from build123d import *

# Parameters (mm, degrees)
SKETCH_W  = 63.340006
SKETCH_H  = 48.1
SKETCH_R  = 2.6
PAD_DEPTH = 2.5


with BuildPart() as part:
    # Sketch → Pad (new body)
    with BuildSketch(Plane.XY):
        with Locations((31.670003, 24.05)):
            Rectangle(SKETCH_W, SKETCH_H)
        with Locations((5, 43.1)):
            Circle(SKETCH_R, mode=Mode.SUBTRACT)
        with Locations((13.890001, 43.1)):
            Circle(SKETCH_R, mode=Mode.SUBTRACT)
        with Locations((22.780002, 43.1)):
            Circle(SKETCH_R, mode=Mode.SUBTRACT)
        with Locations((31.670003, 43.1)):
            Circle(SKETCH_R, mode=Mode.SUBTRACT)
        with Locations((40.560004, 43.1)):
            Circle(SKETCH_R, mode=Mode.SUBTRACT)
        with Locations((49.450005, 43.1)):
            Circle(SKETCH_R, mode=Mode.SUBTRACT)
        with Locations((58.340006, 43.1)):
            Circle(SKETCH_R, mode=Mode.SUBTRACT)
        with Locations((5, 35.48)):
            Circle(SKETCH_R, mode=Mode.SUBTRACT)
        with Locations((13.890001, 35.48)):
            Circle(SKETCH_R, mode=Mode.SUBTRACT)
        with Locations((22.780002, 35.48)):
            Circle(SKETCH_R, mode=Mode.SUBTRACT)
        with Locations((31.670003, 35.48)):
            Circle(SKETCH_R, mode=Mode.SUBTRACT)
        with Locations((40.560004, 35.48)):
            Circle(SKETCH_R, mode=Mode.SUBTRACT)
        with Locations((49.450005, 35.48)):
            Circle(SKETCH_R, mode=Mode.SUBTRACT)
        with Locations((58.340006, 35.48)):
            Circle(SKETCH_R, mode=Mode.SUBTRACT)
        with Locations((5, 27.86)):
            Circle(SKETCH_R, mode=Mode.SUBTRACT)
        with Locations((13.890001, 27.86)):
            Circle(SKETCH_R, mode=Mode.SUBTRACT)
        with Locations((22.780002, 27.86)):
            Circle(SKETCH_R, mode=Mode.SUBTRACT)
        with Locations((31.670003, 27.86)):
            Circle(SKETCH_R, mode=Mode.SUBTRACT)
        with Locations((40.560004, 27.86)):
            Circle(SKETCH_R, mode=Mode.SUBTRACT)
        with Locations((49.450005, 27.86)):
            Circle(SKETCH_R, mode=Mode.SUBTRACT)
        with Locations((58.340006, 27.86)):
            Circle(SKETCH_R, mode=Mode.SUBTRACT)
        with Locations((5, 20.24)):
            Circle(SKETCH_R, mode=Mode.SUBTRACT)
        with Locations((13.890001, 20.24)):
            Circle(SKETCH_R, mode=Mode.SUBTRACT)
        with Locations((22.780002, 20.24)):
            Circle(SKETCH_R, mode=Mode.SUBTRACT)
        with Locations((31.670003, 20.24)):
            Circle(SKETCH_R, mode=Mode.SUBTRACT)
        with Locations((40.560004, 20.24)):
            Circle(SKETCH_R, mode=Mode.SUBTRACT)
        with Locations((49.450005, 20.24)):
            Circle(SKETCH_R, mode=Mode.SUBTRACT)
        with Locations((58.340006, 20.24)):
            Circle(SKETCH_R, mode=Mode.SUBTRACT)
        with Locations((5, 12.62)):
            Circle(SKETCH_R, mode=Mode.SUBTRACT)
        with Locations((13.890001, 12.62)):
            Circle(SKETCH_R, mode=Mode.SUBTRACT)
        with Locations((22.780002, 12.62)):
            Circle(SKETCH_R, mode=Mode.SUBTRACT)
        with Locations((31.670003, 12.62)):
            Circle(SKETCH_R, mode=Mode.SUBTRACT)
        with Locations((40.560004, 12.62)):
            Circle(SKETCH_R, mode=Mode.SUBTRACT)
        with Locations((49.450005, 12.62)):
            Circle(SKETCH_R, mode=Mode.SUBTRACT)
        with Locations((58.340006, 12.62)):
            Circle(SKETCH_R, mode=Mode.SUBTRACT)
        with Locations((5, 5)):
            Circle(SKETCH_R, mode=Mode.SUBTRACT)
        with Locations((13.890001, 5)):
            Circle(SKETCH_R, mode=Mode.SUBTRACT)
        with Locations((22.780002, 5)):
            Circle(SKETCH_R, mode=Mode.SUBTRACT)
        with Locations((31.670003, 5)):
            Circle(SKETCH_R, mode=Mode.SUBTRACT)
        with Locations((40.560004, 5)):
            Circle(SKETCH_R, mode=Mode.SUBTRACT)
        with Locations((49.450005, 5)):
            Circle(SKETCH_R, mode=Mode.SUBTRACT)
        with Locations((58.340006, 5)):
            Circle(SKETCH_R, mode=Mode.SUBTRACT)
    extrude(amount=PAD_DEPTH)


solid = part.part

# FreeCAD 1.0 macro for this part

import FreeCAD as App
import Part
import Sketcher

V = App.Vector


def add_polygon(sketch, points):
    """Adds a closed chain of lines whose ends are joined by coincident constraints."""
    first, n = sketch.GeometryCount, len(points)
    for a, b in zip(points, points[1:] + points[:1]):
        sketch.addGeometry(Part.LineSegment(App.Vector(*a, 0), App.Vector(*b, 0)), False)
    for i in range(n):
        sketch.addConstraint(Sketcher.Constraint("Coincident", first + i, 2, first + (i + 1) % n, 1))

doc = App.newDocument("Part")
body = doc.addObject("PartDesign::Body", "Body")

# Sketch on XY plane
sketch1 = body.newObject("Sketcher::SketchObject", "Sketch")
sketch1.AttachmentSupport = (doc.getObject("XY_Plane"), [""])
sketch1.MapMode = "FlatFace"
add_polygon(sketch1, [(0, 48.1), (0, 0), (63.3, 0), (63.3, 48.1)])  # lines 0-3
sketch1.addGeometry(Part.Circle(V(5, 5, 0), V(0, 0, 1), 2.6), False)  # 4
sketch1.addGeometry(Part.Circle(V(13.9, 5, 0), V(0, 0, 1), 2.6), False)  # 5
sketch1.addGeometry(Part.Circle(V(5, 12.6, 0), V(0, 0, 1), 2.6), False)  # 6
sketch1.addGeometry(Part.Circle(V(13.9, 12.6, 0), V(0, 0, 1), 2.6), False)  # 7
sketch1.addGeometry(Part.Circle(V(22.8, 5, 0), V(0, 0, 1), 2.6), False)  # 8
sketch1.addGeometry(Part.Circle(V(22.8, 12.6, 0), V(0, 0, 1), 2.6), False)  # 9
sketch1.addGeometry(Part.Circle(V(5, 20.2, 0), V(0, 0, 1), 2.6), False)  # 10
sketch1.addGeometry(Part.Circle(V(13.9, 20.2, 0), V(0, 0, 1), 2.6), False)  # 11
sketch1.addGeometry(Part.Circle(V(22.8, 20.2, 0), V(0, 0, 1), 2.6), False)  # 12
sketch1.addGeometry(Part.Circle(V(31.7, 5, 0), V(0, 0, 1), 2.6), False)  # 13
sketch1.addGeometry(Part.Circle(V(40.6, 5, 0), V(0, 0, 1), 2.6), False)  # 14
sketch1.addGeometry(Part.Circle(V(31.7, 12.6, 0), V(0, 0, 1), 2.6), False)  # 15
sketch1.addGeometry(Part.Circle(V(40.6, 12.6, 0), V(0, 0, 1), 2.6), False)  # 16
sketch1.addGeometry(Part.Circle(V(49.5, 5, 0), V(0, 0, 1), 2.6), False)  # 17
sketch1.addGeometry(Part.Circle(V(58.3, 5, 0), V(0, 0, 1), 2.6), False)  # 18
sketch1.addGeometry(Part.Circle(V(49.5, 12.6, 0), V(0, 0, 1), 2.6), False)  # 19
sketch1.addGeometry(Part.Circle(V(58.3, 12.6, 0), V(0, 0, 1), 2.6), False)  # 20
sketch1.addGeometry(Part.Circle(V(31.7, 20.2, 0), V(0, 0, 1), 2.6), False)  # 21
sketch1.addGeometry(Part.Circle(V(40.6, 20.2, 0), V(0, 0, 1), 2.6), False)  # 22
sketch1.addGeometry(Part.Circle(V(49.5, 20.2, 0), V(0, 0, 1), 2.6), False)  # 23
sketch1.addGeometry(Part.Circle(V(58.3, 20.2, 0), V(0, 0, 1), 2.6), False)  # 24
sketch1.addGeometry(Part.Circle(V(5, 27.9, 0), V(0, 0, 1), 2.6), False)  # 25
sketch1.addGeometry(Part.Circle(V(13.9, 27.9, 0), V(0, 0, 1), 2.6), False)  # 26
sketch1.addGeometry(Part.Circle(V(22.8, 27.9, 0), V(0, 0, 1), 2.6), False)  # 27
sketch1.addGeometry(Part.Circle(V(5, 35.5, 0), V(0, 0, 1), 2.6), False)  # 28
sketch1.addGeometry(Part.Circle(V(13.9, 35.5, 0), V(0, 0, 1), 2.6), False)  # 29
sketch1.addGeometry(Part.Circle(V(5, 43.1, 0), V(0, 0, 1), 2.6), False)  # 30
sketch1.addGeometry(Part.Circle(V(13.9, 43.1, 0), V(0, 0, 1), 2.6), False)  # 31
sketch1.addGeometry(Part.Circle(V(22.8, 35.5, 0), V(0, 0, 1), 2.6), False)  # 32
sketch1.addGeometry(Part.Circle(V(22.8, 43.1, 0), V(0, 0, 1), 2.6), False)  # 33
sketch1.addGeometry(Part.Circle(V(31.7, 27.9, 0), V(0, 0, 1), 2.6), False)  # 34
sketch1.addGeometry(Part.Circle(V(40.6, 27.9, 0), V(0, 0, 1), 2.6), False)  # 35
sketch1.addGeometry(Part.Circle(V(49.5, 27.9, 0), V(0, 0, 1), 2.6), False)  # 36
sketch1.addGeometry(Part.Circle(V(58.3, 27.9, 0), V(0, 0, 1), 2.6), False)  # 37
sketch1.addGeometry(Part.Circle(V(31.7, 35.5, 0), V(0, 0, 1), 2.6), False)  # 38
sketch1.addGeometry(Part.Circle(V(40.6, 35.5, 0), V(0, 0, 1), 2.6), False)  # 39
sketch1.addGeometry(Part.Circle(V(31.7, 43.1, 0), V(0, 0, 1), 2.6), False)  # 40
sketch1.addGeometry(Part.Circle(V(40.6, 43.1, 0), V(0, 0, 1), 2.6), False)  # 41
sketch1.addGeometry(Part.Circle(V(49.5, 35.5, 0), V(0, 0, 1), 2.6), False)  # 42
sketch1.addGeometry(Part.Circle(V(58.3, 35.5, 0), V(0, 0, 1), 2.6), False)  # 43
sketch1.addGeometry(Part.Circle(V(49.5, 43.1, 0), V(0, 0, 1), 2.6), False)  # 44
sketch1.addGeometry(Part.Circle(V(58.3, 43.1, 0), V(0, 0, 1), 2.6), False)  # 45
sketch1.addConstraint(Sketcher.Constraint("Vertical", 0))
sketch1.addConstraint(Sketcher.Constraint("Horizontal", 1))
sketch1.addConstraint(Sketcher.Constraint("Vertical", 2))
sketch1.addConstraint(Sketcher.Constraint("Horizontal", 3))
sketch1.addConstraint(Sketcher.Constraint("Coincident", 0, 2, -1, 1))
sketch1.addConstraint(Sketcher.Constraint("Equal", 4, 5))
sketch1.addConstraint(Sketcher.Constraint("Equal", 5, 6))
sketch1.addConstraint(Sketcher.Constraint("Equal", 6, 7))
sketch1.addConstraint(Sketcher.Constraint("Equal", 7, 8))
sketch1.addConstraint(Sketcher.Constraint("Equal", 8, 9))
sketch1.addConstraint(Sketcher.Constraint("Equal", 9, 10))
sketch1.addConstraint(Sketcher.Constraint("Equal", 10, 11))
sketch1.addConstraint(Sketcher.Constraint("Equal", 11, 12))
sketch1.addConstraint(Sketcher.Constraint("Equal", 12, 13))
sketch1.addConstraint(Sketcher.Constraint("Equal", 13, 14))
sketch1.addConstraint(Sketcher.Constraint("Equal", 14, 15))
sketch1.addConstraint(Sketcher.Constraint("Equal", 15, 16))
sketch1.addConstraint(Sketcher.Constraint("Equal", 16, 17))
sketch1.addConstraint(Sketcher.Constraint("Equal", 17, 18))
sketch1.addConstraint(Sketcher.Constraint("Equal", 18, 19))
sketch1.addConstraint(Sketcher.Constraint("Equal", 19, 20))
sketch1.addConstraint(Sketcher.Constraint("Equal", 20, 21))
sketch1.addConstraint(Sketcher.Constraint("Equal", 21, 22))
sketch1.addConstraint(Sketcher.Constraint("Equal", 22, 23))
sketch1.addConstraint(Sketcher.Constraint("Equal", 23, 24))
sketch1.addConstraint(Sketcher.Constraint("Equal", 24, 25))
sketch1.addConstraint(Sketcher.Constraint("Equal", 25, 26))
sketch1.addConstraint(Sketcher.Constraint("Equal", 26, 27))
sketch1.addConstraint(Sketcher.Constraint("Equal", 27, 28))
sketch1.addConstraint(Sketcher.Constraint("Equal", 28, 29))
sketch1.addConstraint(Sketcher.Constraint("Equal", 29, 30))
sketch1.addConstraint(Sketcher.Constraint("Equal", 30, 31))
sketch1.addConstraint(Sketcher.Constraint("Equal", 31, 32))
sketch1.addConstraint(Sketcher.Constraint("Equal", 32, 33))
sketch1.addConstraint(Sketcher.Constraint("Equal", 33, 34))
sketch1.addConstraint(Sketcher.Constraint("Equal", 34, 35))
sketch1.addConstraint(Sketcher.Constraint("Equal", 35, 36))
sketch1.addConstraint(Sketcher.Constraint("Equal", 36, 37))
sketch1.addConstraint(Sketcher.Constraint("Equal", 37, 38))
sketch1.addConstraint(Sketcher.Constraint("Equal", 38, 39))
sketch1.addConstraint(Sketcher.Constraint("Equal", 39, 40))
sketch1.addConstraint(Sketcher.Constraint("Equal", 40, 41))
sketch1.addConstraint(Sketcher.Constraint("Equal", 41, 42))
sketch1.addConstraint(Sketcher.Constraint("Equal", 42, 43))
sketch1.addConstraint(Sketcher.Constraint("Equal", 43, 44))
sketch1.addConstraint(Sketcher.Constraint("Equal", 44, 45))
sketch1.addConstraint(Sketcher.Constraint("Horizontal", 4, 3, 5, 3))
sketch1.addConstraint(Sketcher.Constraint("Horizontal", 6, 3, 7, 3))
sketch1.addConstraint(Sketcher.Constraint("Horizontal", 5, 3, 8, 3))
sketch1.addConstraint(Sketcher.Constraint("Horizontal", 7, 3, 9, 3))
sketch1.addConstraint(Sketcher.Constraint("Horizontal", 10, 3, 11, 3))
sketch1.addConstraint(Sketcher.Constraint("Horizontal", 11, 3, 12, 3))
sketch1.addConstraint(Sketcher.Constraint("Horizontal", 8, 3, 13, 3))
sketch1.addConstraint(Sketcher.Constraint("Horizontal", 13, 3, 14, 3))
sketch1.addConstraint(Sketcher.Constraint("Horizontal", 9, 3, 15, 3))
sketch1.addConstraint(Sketcher.Constraint("Horizontal", 15, 3, 16, 3))
sketch1.addConstraint(Sketcher.Constraint("Horizontal", 14, 3, 17, 3))
sketch1.addConstraint(Sketcher.Constraint("Horizontal", 17, 3, 18, 3))
sketch1.addConstraint(Sketcher.Constraint("Horizontal", 16, 3, 19, 3))
sketch1.addConstraint(Sketcher.Constraint("Horizontal", 19, 3, 20, 3))
sketch1.addConstraint(Sketcher.Constraint("Horizontal", 12, 3, 21, 3))
sketch1.addConstraint(Sketcher.Constraint("Horizontal", 21, 3, 22, 3))
sketch1.addConstraint(Sketcher.Constraint("Horizontal", 22, 3, 23, 3))
sketch1.addConstraint(Sketcher.Constraint("Horizontal", 23, 3, 24, 3))
sketch1.addConstraint(Sketcher.Constraint("Horizontal", 25, 3, 26, 3))
sketch1.addConstraint(Sketcher.Constraint("Horizontal", 26, 3, 27, 3))
sketch1.addConstraint(Sketcher.Constraint("Horizontal", 28, 3, 29, 3))
sketch1.addConstraint(Sketcher.Constraint("Horizontal", 30, 3, 31, 3))
sketch1.addConstraint(Sketcher.Constraint("Horizontal", 29, 3, 32, 3))
sketch1.addConstraint(Sketcher.Constraint("Horizontal", 31, 3, 33, 3))
sketch1.addConstraint(Sketcher.Constraint("Horizontal", 27, 3, 34, 3))
sketch1.addConstraint(Sketcher.Constraint("Horizontal", 34, 3, 35, 3))
sketch1.addConstraint(Sketcher.Constraint("Horizontal", 35, 3, 36, 3))
sketch1.addConstraint(Sketcher.Constraint("Horizontal", 36, 3, 37, 3))
sketch1.addConstraint(Sketcher.Constraint("Horizontal", 32, 3, 38, 3))
sketch1.addConstraint(Sketcher.Constraint("Horizontal", 38, 3, 39, 3))
sketch1.addConstraint(Sketcher.Constraint("Horizontal", 33, 3, 40, 3))
sketch1.addConstraint(Sketcher.Constraint("Horizontal", 40, 3, 41, 3))
sketch1.addConstraint(Sketcher.Constraint("Horizontal", 39, 3, 42, 3))
sketch1.addConstraint(Sketcher.Constraint("Horizontal", 42, 3, 43, 3))
sketch1.addConstraint(Sketcher.Constraint("Horizontal", 41, 3, 44, 3))
sketch1.addConstraint(Sketcher.Constraint("Horizontal", 44, 3, 45, 3))
sketch1.addConstraint(Sketcher.Constraint("Vertical", 4, 3, 6, 3))
sketch1.addConstraint(Sketcher.Constraint("Vertical", 5, 3, 7, 3))
sketch1.addConstraint(Sketcher.Constraint("Vertical", 8, 3, 9, 3))
sketch1.addConstraint(Sketcher.Constraint("Vertical", 6, 3, 10, 3))
sketch1.addConstraint(Sketcher.Constraint("Vertical", 7, 3, 11, 3))
sketch1.addConstraint(Sketcher.Constraint("Vertical", 9, 3, 12, 3))
sketch1.addConstraint(Sketcher.Constraint("Vertical", 13, 3, 15, 3))
sketch1.addConstraint(Sketcher.Constraint("Vertical", 14, 3, 16, 3))
sketch1.addConstraint(Sketcher.Constraint("Vertical", 17, 3, 19, 3))
sketch1.addConstraint(Sketcher.Constraint("Vertical", 18, 3, 20, 3))
sketch1.addConstraint(Sketcher.Constraint("Vertical", 15, 3, 21, 3))
sketch1.addConstraint(Sketcher.Constraint("Vertical", 16, 3, 22, 3))
sketch1.addConstraint(Sketcher.Constraint("Vertical", 19, 3, 23, 3))
sketch1.addConstraint(Sketcher.Constraint("Vertical", 20, 3, 24, 3))
sketch1.addConstraint(Sketcher.Constraint("Vertical", 10, 3, 25, 3))
sketch1.addConstraint(Sketcher.Constraint("Vertical", 11, 3, 26, 3))
sketch1.addConstraint(Sketcher.Constraint("Vertical", 12, 3, 27, 3))
sketch1.addConstraint(Sketcher.Constraint("Vertical", 25, 3, 28, 3))
sketch1.addConstraint(Sketcher.Constraint("Vertical", 26, 3, 29, 3))
sketch1.addConstraint(Sketcher.Constraint("Vertical", 28, 3, 30, 3))
sketch1.addConstraint(Sketcher.Constraint("Vertical", 29, 3, 31, 3))
sketch1.addConstraint(Sketcher.Constraint("Vertical", 27, 3, 32, 3))
sketch1.addConstraint(Sketcher.Constraint("Vertical", 32, 3, 33, 3))
sketch1.addConstraint(Sketcher.Constraint("Vertical", 21, 3, 34, 3))
sketch1.addConstraint(Sketcher.Constraint("Vertical", 22, 3, 35, 3))
sketch1.addConstraint(Sketcher.Constraint("Vertical", 23, 3, 36, 3))
sketch1.addConstraint(Sketcher.Constraint("Vertical", 24, 3, 37, 3))
sketch1.addConstraint(Sketcher.Constraint("Vertical", 34, 3, 38, 3))
sketch1.addConstraint(Sketcher.Constraint("Vertical", 35, 3, 39, 3))
sketch1.addConstraint(Sketcher.Constraint("Vertical", 38, 3, 40, 3))
sketch1.addConstraint(Sketcher.Constraint("Vertical", 39, 3, 41, 3))
sketch1.addConstraint(Sketcher.Constraint("Vertical", 36, 3, 42, 3))
sketch1.addConstraint(Sketcher.Constraint("Vertical", 37, 3, 43, 3))
sketch1.addConstraint(Sketcher.Constraint("Vertical", 42, 3, 44, 3))
sketch1.addConstraint(Sketcher.Constraint("Vertical", 43, 3, 45, 3))
sketch1.addConstraint(Sketcher.Constraint("Diameter", 4, 5.2))
sketch1.addConstraint(Sketcher.Constraint("DistanceY", 0, 2, 0, 1, 48.1))
sketch1.addConstraint(Sketcher.Constraint("DistanceX", -1, 1, 4, 3, 5.0))
sketch1.addConstraint(Sketcher.Constraint("DistanceY", -1, 1, 4, 3, 5.0))
sketch1.addConstraint(Sketcher.Constraint("DistanceX", 18, 3, 1, 2, 5.0))
sketch1.addConstraint(Sketcher.Constraint("DistanceY", 45, 3, 2, 2, 5.0))
sketch1.addConstraint(Sketcher.Constraint("DistanceX", -1, 1, 5, 3, 13.890001))
sketch1.addConstraint(Sketcher.Constraint("DistanceY", -1, 1, 6, 3, 12.62))
sketch1.addConstraint(Sketcher.Constraint("DistanceX", -1, 1, 8, 3, 22.780002))
sketch1.addConstraint(Sketcher.Constraint("DistanceY", -1, 1, 10, 3, 20.24))
sketch1.addConstraint(Sketcher.Constraint("DistanceY", -1, 1, 25, 3, 27.86))
sketch1.addConstraint(Sketcher.Constraint("DistanceY", -1, 1, 28, 3, 35.48))
sketch1.addConstraint(Sketcher.Constraint("DistanceX", 8, 3, 13, 3, 8.890001))
sketch1.addConstraint(Sketcher.Constraint("DistanceX", 13, 3, 14, 3, 8.890001))
sketch1.addConstraint(Sketcher.Constraint("DistanceX", 14, 3, 17, 3, 8.890001))
sketch1.addConstraint(Sketcher.Constraint("DistanceX", 17, 3, 18, 3, 8.890001))
pad1 = body.newObject("PartDesign::Pad", "Pad")
pad1.Profile = sketch1
pad1.Length = 2.5

doc.recompute()
